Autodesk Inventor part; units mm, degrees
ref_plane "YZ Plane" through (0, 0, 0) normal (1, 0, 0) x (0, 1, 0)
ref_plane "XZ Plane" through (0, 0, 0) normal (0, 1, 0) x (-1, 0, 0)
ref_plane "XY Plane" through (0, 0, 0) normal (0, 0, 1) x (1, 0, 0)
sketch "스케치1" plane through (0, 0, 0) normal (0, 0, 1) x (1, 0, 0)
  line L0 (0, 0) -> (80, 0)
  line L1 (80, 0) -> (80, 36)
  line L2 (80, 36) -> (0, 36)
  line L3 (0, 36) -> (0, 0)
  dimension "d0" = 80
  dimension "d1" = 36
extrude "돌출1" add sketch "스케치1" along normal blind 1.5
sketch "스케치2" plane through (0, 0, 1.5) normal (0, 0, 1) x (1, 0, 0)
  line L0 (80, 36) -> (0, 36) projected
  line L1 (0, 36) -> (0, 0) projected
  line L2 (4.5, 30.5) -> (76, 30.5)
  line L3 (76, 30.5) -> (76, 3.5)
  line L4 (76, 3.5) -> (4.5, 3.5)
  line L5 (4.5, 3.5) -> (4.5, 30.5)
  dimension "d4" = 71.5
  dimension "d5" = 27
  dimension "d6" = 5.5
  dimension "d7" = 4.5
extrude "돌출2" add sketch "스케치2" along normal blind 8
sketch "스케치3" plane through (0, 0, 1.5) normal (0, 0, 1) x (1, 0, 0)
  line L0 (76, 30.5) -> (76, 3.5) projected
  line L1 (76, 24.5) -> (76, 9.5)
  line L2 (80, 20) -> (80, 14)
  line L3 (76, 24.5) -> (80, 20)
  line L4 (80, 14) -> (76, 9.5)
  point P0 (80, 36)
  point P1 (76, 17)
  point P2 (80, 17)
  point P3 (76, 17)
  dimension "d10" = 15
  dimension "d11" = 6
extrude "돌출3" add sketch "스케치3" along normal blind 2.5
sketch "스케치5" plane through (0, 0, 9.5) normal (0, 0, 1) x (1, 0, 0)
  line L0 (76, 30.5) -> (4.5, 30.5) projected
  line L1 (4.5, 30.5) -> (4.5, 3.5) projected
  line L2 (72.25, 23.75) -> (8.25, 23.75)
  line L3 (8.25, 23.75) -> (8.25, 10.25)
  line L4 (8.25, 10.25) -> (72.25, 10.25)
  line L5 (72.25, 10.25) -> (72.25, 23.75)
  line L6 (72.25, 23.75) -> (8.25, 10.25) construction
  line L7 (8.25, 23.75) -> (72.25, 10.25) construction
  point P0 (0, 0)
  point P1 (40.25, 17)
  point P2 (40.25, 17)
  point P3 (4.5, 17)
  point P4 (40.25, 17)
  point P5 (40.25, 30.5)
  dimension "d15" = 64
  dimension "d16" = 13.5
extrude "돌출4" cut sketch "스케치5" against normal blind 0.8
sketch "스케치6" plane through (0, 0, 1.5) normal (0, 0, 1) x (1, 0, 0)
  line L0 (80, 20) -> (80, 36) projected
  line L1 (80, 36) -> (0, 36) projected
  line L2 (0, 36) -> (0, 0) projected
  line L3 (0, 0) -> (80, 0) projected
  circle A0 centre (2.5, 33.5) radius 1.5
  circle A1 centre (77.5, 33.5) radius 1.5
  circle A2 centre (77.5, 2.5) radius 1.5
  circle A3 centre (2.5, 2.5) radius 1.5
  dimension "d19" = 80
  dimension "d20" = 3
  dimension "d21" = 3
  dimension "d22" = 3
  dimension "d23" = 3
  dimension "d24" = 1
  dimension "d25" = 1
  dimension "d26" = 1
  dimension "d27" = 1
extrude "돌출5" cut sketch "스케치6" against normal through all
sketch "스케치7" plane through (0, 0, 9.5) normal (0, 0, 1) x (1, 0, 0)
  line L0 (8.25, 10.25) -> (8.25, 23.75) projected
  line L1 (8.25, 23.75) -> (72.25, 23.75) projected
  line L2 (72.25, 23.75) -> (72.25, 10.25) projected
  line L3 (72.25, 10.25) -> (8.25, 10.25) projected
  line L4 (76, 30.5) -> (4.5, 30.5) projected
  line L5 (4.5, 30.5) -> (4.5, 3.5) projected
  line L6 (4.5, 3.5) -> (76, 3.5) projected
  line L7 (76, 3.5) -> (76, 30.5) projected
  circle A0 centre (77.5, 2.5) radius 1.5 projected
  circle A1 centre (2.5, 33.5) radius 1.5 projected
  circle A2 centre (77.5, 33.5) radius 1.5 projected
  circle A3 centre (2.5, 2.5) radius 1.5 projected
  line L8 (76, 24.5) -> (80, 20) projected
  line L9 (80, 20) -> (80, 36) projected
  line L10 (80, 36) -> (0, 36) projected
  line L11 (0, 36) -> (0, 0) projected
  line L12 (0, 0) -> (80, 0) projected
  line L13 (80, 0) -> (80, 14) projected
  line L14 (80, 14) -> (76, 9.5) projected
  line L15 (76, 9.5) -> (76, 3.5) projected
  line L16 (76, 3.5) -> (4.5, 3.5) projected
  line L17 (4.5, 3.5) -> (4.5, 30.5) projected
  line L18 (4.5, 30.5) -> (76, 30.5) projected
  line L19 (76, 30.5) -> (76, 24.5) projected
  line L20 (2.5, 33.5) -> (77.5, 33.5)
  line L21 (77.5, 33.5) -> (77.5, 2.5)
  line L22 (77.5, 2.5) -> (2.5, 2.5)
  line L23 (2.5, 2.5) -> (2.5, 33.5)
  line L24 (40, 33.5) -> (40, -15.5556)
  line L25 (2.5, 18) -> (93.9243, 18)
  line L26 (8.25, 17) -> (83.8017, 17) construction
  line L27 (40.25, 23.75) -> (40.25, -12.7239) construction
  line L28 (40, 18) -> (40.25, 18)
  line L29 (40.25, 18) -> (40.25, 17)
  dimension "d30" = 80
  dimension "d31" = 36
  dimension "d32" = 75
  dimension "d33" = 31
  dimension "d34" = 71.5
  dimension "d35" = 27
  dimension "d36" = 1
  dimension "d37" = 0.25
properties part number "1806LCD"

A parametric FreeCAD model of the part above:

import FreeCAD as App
import Part
import Sketcher
from FreeCAD import Vector
Q = App.Units.Quantity

doc = App.newDocument("Part")
body = doc.addObject("PartDesign::Body", "Body")

# Sketch on XY plane
sketch1 = doc.addObject("Sketcher::SketchObject", "Sketch")
body.addObject(sketch1)
sketch1.AttachmentSupport = (doc.XY_Plane, [""])
sketch1.MapMode = "FlatFace"
sketch1.addGeometry([
    Part.LineSegment(Vector(0, 36, 0), Vector(0, 0, 0)),
    Part.LineSegment(Vector(0, 0, 0), Vector(80, 0, 0)),
    Part.LineSegment(Vector(80, 0, 0), Vector(80, 36, 0)),
    Part.LineSegment(Vector(80, 36, 0), Vector(0, 36, 0)),
], False)
sketch1.addConstraint([
    Sketcher.Constraint("Coincident", 0, 2, 1, 1),
    Sketcher.Constraint("Coincident", 1, 2, 2, 1),
    Sketcher.Constraint("Coincident", 2, 2, 3, 1),
    Sketcher.Constraint("Coincident", 3, 2, 0, 1),
    Sketcher.Constraint("Vertical", 0),
    Sketcher.Constraint("Horizontal", 1),
    Sketcher.Constraint("Vertical", 2),
    Sketcher.Constraint("Horizontal", 3),
    Sketcher.Constraint("Coincident", 0, 2, -1, 1),
    Sketcher.Constraint("DistanceX", 1, 1, 1, 2, Q("80 mm")),
    Sketcher.Constraint("DistanceY", 0, 2, 0, 1, Q("36 mm")),
])
pad1 = doc.addObject("PartDesign::Pad", "Pad")
body.addObject(pad1)
pad1.Profile = sketch1
pad1.Length = 1.5

# Sketch on XY plane
sketch2 = doc.addObject("Sketcher::SketchObject", "Sketch001")
body.addObject(sketch2)
sketch2.AttachmentSupport = (doc.XY_Plane, [""])
sketch2.MapMode = "FlatFace"
sketch2.AttachmentOffset = App.Placement(Vector(0, 0, 1.5), App.Rotation())
sketch2.addGeometry([
    Part.LineSegment(Vector(76, 30, 0), Vector(4, 30, 0)),
    Part.LineSegment(Vector(4, 30, 0), Vector(4, 4, 0)),
    Part.LineSegment(Vector(4, 4, 0), Vector(76, 4, 0)),
    Part.LineSegment(Vector(76, 4, 0), Vector(76, 30, 0)),
], False)
sketch2.addConstraint([
    Sketcher.Constraint("Coincident", 0, 2, 1, 1),
    Sketcher.Constraint("Coincident", 1, 2, 2, 1),
    Sketcher.Constraint("Coincident", 2, 2, 3, 1),
    Sketcher.Constraint("Coincident", 3, 2, 0, 1),
    Sketcher.Constraint("Horizontal", 0),
    Sketcher.Constraint("Vertical", 1),
    Sketcher.Constraint("Horizontal", 2),
    Sketcher.Constraint("Vertical", 3),
    Sketcher.Constraint("DistanceY", 1, 2, 1, 1, Q("27 mm")),
    Sketcher.Constraint("DistanceX", 0, 2, 0, 1, Q("71.5 mm")),
    Sketcher.Constraint("DistanceX", -1, 1, 0, 2, Q("4.5 mm")),
    Sketcher.Constraint("DistanceY", -1, 1, 0, 2, Q("30.5 mm")),
])
pad2 = doc.addObject("PartDesign::Pad", "Pad001")
body.addObject(pad2)
pad2.Profile = sketch2
pad2.Length = 8

# Sketch on XY plane
sketch3 = doc.addObject("Sketcher::SketchObject", "Sketch002")
body.addObject(sketch3)
sketch3.AttachmentSupport = (doc.XY_Plane, [""])
sketch3.MapMode = "FlatFace"
sketch3.AttachmentOffset = App.Placement(Vector(0, 0, 1.5), App.Rotation())
sketch3.addGeometry([
    Part.LineSegment(Vector(80, 20, 0), Vector(76, 24, 0)),
    Part.LineSegment(Vector(76, 24, 0), Vector(76, 10, 0)),
    Part.LineSegment(Vector(76, 10, 0), Vector(80, 14, 0)),
    Part.LineSegment(Vector(80, 14, 0), Vector(80, 20, 0)),
], False)
sketch3.addConstraint([
    Sketcher.Constraint("Coincident", 0, 2, 1, 1),
    Sketcher.Constraint("Coincident", 1, 2, 2, 1),
    Sketcher.Constraint("Coincident", 2, 2, 3, 1),
    Sketcher.Constraint("Coincident", 3, 2, 0, 1),
    Sketcher.Constraint("Vertical", 1),
    Sketcher.Constraint("Vertical", 3),
    Sketcher.Constraint("Equal", 0, 2),
    Sketcher.Constraint("DistanceY", 1, 2, 1, 1, Q("15 mm")),
    Sketcher.Constraint("DistanceY", 3, 1, 3, 2, Q("6 mm")),
    Sketcher.Constraint("DistanceX", -1, 1, 0, 2, Q("76 mm")),
    Sketcher.Constraint("DistanceX", -1, 1, 2, 2, Q("80 mm")),
    Sketcher.Constraint("DistanceY", -1, 1, 2, 2, Q("14 mm")),
])
pad3 = doc.addObject("PartDesign::Pad", "Pad002")
body.addObject(pad3)
pad3.Profile = sketch3
pad3.Length = 2.5

# Sketch on XY plane
sketch4 = doc.addObject("Sketcher::SketchObject", "Sketch003")
body.addObject(sketch4)
sketch4.AttachmentSupport = (doc.XY_Plane, [""])
sketch4.MapMode = "FlatFace"
sketch4.AttachmentOffset = App.Placement(Vector(0, 0, 9.5), App.Rotation())
sketch4.addGeometry([
    Part.LineSegment(Vector(72, 10, 0), Vector(72, 24, 0)),
    Part.LineSegment(Vector(72, 24, 0), Vector(8, 24, 0)),
    Part.LineSegment(Vector(8, 24, 0), Vector(8, 10, 0)),
    Part.LineSegment(Vector(8, 10, 0), Vector(72, 10, 0)),
], False)
sketch4.addConstraint([
    Sketcher.Constraint("Coincident", 0, 2, 1, 1),
    Sketcher.Constraint("Coincident", 1, 2, 2, 1),
    Sketcher.Constraint("Coincident", 2, 2, 3, 1),
    Sketcher.Constraint("Coincident", 3, 2, 0, 1),
    Sketcher.Constraint("Vertical", 0),
    Sketcher.Constraint("Horizontal", 1),
    Sketcher.Constraint("Vertical", 2),
    Sketcher.Constraint("Horizontal", 3),
    Sketcher.Constraint("DistanceX", 1, 2, 1, 1, Q("64 mm")),
    Sketcher.Constraint("DistanceY", 0, 1, 0, 2, Q("13.5 mm")),
    Sketcher.Constraint("DistanceX", -1, 1, 0, 2, Q("72.25 mm")),
    Sketcher.Constraint("DistanceY", -1, 1, 0, 2, Q("23.75 mm")),
])
pocket1 = doc.addObject("PartDesign::Pocket", "Pocket")
body.addObject(pocket1)
pocket1.Profile = sketch4
pocket1.Length = 0.8

# Sketch on XY plane
sketch5 = doc.addObject("Sketcher::SketchObject", "Sketch004")
body.addObject(sketch5)
sketch5.AttachmentSupport = (doc.XY_Plane, [""])
sketch5.MapMode = "FlatFace"
sketch5.AttachmentOffset = App.Placement(Vector(0, 0, 1.5), App.Rotation())
sketch5.addGeometry([
    Part.Circle(Vector(2.5, 33.5, 0), Vector(0, 0, 1), 1.5),
    Part.Circle(Vector(77.5, 33.5, 0), Vector(0, 0, 1), 1.5),
    Part.Circle(Vector(77.5, 2.5, 0), Vector(0, 0, 1), 1.5),
    Part.Circle(Vector(2.5, 2.5, 0), Vector(0, 0, 1), 1.5),
], False)
sketch5.addConstraint([
    Sketcher.Constraint("Equal", 0, 1),
    Sketcher.Constraint("Equal", 1, 2),
    Sketcher.Constraint("Equal", 2, 3),
    Sketcher.Constraint("Horizontal", 0, 3, 1, 3),
    Sketcher.Constraint("Horizontal", 2, 3, 3, 3),
    Sketcher.Constraint("Vertical", 1, 3, 2, 3),
    Sketcher.Constraint("Vertical", 0, 3, 3, 3),
    Sketcher.Constraint("Diameter", 0, Q("3 mm")),
    Sketcher.Constraint("DistanceX", 0, 3, 1, 3, Q("75 mm")),
    Sketcher.Constraint("DistanceY", 2, 3, 1, 3, Q("31 mm")),
    Sketcher.Constraint("DistanceX", -1, 1, 0, 3, Q("2.5 mm")),
    Sketcher.Constraint("DistanceY", -1, 1, 0, 3, Q("33.5 mm")),
])
pocket2 = doc.addObject("PartDesign::Pocket", "Pocket001")
body.addObject(pocket2)
pocket2.Profile = sketch5
pocket2.Type = "ThroughAll"

doc.recompute()
